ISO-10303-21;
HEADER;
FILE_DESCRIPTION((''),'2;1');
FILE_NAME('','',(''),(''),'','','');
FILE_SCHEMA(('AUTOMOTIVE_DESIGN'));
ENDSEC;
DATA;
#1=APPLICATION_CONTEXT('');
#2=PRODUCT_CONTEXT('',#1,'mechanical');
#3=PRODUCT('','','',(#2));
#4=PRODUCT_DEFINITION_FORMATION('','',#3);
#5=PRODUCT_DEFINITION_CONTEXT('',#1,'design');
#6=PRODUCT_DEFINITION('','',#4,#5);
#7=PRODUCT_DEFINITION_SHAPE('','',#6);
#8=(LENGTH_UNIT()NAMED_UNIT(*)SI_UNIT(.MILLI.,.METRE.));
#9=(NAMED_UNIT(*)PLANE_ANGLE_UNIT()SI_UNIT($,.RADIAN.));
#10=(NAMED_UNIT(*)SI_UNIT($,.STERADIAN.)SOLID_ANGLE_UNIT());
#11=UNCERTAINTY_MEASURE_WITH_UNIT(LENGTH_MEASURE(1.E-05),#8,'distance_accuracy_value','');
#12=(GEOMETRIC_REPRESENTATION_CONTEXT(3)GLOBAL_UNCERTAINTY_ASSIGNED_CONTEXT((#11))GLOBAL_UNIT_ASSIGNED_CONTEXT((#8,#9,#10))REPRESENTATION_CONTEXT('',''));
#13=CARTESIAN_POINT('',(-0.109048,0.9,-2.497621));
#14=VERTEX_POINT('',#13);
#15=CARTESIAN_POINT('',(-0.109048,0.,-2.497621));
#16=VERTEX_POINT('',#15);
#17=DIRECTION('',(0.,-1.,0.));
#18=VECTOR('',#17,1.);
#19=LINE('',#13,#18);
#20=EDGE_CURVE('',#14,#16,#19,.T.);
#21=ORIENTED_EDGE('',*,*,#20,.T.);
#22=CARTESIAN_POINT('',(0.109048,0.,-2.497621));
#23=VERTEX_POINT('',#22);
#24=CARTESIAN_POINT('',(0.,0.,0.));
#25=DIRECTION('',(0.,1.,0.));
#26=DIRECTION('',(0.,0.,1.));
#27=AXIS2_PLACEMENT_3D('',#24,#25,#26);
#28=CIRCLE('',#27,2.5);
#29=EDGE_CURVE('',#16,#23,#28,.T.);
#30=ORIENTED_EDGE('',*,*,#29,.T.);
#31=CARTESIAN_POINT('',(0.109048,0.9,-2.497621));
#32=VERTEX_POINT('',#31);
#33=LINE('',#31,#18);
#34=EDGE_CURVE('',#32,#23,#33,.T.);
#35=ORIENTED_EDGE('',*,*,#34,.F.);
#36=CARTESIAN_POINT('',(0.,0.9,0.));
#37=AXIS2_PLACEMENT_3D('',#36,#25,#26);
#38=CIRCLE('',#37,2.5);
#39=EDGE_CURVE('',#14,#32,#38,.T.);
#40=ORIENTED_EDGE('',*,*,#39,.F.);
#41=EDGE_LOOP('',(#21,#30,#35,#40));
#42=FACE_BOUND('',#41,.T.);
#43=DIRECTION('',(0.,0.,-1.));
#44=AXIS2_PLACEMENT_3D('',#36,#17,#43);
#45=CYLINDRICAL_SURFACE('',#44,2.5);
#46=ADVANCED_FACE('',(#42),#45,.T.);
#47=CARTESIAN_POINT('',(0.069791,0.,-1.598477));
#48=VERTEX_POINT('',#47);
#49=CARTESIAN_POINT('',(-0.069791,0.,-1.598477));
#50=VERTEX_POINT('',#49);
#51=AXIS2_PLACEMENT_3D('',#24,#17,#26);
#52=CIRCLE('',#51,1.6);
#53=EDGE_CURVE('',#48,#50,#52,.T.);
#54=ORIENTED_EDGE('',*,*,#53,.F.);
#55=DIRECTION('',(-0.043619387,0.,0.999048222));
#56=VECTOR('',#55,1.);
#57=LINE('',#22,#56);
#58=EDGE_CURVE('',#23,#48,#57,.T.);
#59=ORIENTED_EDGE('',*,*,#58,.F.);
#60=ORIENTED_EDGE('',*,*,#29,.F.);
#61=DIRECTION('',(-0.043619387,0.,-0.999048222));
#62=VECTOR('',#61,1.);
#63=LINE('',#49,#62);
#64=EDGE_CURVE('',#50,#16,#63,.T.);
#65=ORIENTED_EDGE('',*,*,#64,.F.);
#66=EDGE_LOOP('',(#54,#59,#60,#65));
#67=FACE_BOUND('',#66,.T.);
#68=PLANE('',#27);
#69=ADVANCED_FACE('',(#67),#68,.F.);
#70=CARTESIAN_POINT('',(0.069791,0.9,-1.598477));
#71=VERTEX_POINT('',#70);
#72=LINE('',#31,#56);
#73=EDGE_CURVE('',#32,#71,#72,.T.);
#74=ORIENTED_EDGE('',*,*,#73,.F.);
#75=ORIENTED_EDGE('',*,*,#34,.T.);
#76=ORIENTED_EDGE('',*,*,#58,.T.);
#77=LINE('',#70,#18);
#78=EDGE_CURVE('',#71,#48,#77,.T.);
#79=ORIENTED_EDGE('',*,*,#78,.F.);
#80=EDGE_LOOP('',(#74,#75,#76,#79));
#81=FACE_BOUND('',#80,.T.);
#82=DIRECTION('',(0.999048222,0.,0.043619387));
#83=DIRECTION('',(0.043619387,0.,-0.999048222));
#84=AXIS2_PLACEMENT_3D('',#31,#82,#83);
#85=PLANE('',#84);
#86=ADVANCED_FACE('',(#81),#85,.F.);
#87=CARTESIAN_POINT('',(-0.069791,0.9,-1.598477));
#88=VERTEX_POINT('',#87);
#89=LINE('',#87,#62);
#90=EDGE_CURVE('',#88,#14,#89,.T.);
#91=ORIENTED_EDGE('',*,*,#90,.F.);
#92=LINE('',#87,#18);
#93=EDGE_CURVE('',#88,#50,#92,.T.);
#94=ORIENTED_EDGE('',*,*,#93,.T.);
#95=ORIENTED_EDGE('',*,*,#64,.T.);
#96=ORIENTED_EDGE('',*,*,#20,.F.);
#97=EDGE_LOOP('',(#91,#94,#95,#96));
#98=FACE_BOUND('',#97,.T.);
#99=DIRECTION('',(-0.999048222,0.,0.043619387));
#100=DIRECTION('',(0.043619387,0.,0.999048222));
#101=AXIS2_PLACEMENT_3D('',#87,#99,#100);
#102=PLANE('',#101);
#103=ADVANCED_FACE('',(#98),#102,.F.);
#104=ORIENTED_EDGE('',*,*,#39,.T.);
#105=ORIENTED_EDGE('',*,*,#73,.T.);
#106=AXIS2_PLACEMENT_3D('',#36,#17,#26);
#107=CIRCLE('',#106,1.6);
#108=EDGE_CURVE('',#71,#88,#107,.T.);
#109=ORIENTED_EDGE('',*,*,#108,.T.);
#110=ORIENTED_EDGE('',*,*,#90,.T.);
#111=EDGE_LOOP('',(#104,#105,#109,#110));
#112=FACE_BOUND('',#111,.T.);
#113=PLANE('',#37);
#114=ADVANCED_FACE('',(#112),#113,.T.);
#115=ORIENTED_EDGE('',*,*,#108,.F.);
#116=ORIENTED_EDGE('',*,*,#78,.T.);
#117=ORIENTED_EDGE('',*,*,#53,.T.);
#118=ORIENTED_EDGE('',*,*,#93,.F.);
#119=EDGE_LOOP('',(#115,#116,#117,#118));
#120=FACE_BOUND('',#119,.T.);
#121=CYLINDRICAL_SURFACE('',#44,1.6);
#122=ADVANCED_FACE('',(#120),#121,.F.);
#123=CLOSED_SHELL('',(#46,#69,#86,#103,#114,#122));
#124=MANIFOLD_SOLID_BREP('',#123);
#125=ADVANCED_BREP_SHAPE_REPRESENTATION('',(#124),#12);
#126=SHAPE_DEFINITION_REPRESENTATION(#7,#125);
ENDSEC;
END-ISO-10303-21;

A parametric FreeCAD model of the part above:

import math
import FreeCAD as App
import Part
import Sketcher

V = App.Vector
Q = App.Units.Quantity

doc = App.newDocument("Part")
body = doc.addObject("PartDesign::Body", "Body")

# Sketch on XZ plane
sketch1 = body.newObject("Sketcher::SketchObject", "Sketch")
sketch1.AttachmentSupport = (doc.getObject("XZ_Plane"), [""])
sketch1.MapMode = "FlatFace"
sketch1.addGeometry([
    Part.LineSegment(V(-0.07, -1.6, 0), V(-0.11, -2.5, 0)),
    Part.ArcOfCircle(Part.Circle(V(0, 0, 0), V(0, 0, 1), 2.5), math.radians(-88), math.radians(268)),
    Part.LineSegment(V(0.11, -2.5, 0), V(0.07, -1.6, 0)),
    Part.ArcOfCircle(Part.Circle(V(0, 0, 0), V(0, 0, 1), 1.6), math.radians(-87), math.radians(267)),
], False)
sketch1.addConstraint([
    Sketcher.Constraint("Coincident", 0, 2, 1, 2),
    Sketcher.Constraint("Coincident", 1, 1, 2, 1),
    Sketcher.Constraint("Coincident", 2, 2, 3, 1),
    Sketcher.Constraint("Coincident", 3, 2, 0, 1),
    Sketcher.Constraint("Coincident", 1, 3, -1, 1),
    Sketcher.Constraint("Coincident", 3, 3, -1, 1),
    Sketcher.Constraint("Horizontal", 0, 2, 1, 1),
    Sketcher.Constraint("Horizontal", 2, 2, 3, 2),
    Sketcher.Constraint("Radius", 1, Q("2.5 mm")),
    Sketcher.Constraint("Radius", 3, Q("1.6 mm")),
    Sketcher.Constraint("Angle", 0, Q("-92.5 deg")),
    Sketcher.Constraint("DistanceX", 0, 2, -1, 1, Q("0.109048 mm")),
])
pad1 = body.newObject("PartDesign::Pad", "Pad")
pad1.Profile = sketch1
pad1.Length = 0.9
pad1.Reversed = True

doc.recompute()
